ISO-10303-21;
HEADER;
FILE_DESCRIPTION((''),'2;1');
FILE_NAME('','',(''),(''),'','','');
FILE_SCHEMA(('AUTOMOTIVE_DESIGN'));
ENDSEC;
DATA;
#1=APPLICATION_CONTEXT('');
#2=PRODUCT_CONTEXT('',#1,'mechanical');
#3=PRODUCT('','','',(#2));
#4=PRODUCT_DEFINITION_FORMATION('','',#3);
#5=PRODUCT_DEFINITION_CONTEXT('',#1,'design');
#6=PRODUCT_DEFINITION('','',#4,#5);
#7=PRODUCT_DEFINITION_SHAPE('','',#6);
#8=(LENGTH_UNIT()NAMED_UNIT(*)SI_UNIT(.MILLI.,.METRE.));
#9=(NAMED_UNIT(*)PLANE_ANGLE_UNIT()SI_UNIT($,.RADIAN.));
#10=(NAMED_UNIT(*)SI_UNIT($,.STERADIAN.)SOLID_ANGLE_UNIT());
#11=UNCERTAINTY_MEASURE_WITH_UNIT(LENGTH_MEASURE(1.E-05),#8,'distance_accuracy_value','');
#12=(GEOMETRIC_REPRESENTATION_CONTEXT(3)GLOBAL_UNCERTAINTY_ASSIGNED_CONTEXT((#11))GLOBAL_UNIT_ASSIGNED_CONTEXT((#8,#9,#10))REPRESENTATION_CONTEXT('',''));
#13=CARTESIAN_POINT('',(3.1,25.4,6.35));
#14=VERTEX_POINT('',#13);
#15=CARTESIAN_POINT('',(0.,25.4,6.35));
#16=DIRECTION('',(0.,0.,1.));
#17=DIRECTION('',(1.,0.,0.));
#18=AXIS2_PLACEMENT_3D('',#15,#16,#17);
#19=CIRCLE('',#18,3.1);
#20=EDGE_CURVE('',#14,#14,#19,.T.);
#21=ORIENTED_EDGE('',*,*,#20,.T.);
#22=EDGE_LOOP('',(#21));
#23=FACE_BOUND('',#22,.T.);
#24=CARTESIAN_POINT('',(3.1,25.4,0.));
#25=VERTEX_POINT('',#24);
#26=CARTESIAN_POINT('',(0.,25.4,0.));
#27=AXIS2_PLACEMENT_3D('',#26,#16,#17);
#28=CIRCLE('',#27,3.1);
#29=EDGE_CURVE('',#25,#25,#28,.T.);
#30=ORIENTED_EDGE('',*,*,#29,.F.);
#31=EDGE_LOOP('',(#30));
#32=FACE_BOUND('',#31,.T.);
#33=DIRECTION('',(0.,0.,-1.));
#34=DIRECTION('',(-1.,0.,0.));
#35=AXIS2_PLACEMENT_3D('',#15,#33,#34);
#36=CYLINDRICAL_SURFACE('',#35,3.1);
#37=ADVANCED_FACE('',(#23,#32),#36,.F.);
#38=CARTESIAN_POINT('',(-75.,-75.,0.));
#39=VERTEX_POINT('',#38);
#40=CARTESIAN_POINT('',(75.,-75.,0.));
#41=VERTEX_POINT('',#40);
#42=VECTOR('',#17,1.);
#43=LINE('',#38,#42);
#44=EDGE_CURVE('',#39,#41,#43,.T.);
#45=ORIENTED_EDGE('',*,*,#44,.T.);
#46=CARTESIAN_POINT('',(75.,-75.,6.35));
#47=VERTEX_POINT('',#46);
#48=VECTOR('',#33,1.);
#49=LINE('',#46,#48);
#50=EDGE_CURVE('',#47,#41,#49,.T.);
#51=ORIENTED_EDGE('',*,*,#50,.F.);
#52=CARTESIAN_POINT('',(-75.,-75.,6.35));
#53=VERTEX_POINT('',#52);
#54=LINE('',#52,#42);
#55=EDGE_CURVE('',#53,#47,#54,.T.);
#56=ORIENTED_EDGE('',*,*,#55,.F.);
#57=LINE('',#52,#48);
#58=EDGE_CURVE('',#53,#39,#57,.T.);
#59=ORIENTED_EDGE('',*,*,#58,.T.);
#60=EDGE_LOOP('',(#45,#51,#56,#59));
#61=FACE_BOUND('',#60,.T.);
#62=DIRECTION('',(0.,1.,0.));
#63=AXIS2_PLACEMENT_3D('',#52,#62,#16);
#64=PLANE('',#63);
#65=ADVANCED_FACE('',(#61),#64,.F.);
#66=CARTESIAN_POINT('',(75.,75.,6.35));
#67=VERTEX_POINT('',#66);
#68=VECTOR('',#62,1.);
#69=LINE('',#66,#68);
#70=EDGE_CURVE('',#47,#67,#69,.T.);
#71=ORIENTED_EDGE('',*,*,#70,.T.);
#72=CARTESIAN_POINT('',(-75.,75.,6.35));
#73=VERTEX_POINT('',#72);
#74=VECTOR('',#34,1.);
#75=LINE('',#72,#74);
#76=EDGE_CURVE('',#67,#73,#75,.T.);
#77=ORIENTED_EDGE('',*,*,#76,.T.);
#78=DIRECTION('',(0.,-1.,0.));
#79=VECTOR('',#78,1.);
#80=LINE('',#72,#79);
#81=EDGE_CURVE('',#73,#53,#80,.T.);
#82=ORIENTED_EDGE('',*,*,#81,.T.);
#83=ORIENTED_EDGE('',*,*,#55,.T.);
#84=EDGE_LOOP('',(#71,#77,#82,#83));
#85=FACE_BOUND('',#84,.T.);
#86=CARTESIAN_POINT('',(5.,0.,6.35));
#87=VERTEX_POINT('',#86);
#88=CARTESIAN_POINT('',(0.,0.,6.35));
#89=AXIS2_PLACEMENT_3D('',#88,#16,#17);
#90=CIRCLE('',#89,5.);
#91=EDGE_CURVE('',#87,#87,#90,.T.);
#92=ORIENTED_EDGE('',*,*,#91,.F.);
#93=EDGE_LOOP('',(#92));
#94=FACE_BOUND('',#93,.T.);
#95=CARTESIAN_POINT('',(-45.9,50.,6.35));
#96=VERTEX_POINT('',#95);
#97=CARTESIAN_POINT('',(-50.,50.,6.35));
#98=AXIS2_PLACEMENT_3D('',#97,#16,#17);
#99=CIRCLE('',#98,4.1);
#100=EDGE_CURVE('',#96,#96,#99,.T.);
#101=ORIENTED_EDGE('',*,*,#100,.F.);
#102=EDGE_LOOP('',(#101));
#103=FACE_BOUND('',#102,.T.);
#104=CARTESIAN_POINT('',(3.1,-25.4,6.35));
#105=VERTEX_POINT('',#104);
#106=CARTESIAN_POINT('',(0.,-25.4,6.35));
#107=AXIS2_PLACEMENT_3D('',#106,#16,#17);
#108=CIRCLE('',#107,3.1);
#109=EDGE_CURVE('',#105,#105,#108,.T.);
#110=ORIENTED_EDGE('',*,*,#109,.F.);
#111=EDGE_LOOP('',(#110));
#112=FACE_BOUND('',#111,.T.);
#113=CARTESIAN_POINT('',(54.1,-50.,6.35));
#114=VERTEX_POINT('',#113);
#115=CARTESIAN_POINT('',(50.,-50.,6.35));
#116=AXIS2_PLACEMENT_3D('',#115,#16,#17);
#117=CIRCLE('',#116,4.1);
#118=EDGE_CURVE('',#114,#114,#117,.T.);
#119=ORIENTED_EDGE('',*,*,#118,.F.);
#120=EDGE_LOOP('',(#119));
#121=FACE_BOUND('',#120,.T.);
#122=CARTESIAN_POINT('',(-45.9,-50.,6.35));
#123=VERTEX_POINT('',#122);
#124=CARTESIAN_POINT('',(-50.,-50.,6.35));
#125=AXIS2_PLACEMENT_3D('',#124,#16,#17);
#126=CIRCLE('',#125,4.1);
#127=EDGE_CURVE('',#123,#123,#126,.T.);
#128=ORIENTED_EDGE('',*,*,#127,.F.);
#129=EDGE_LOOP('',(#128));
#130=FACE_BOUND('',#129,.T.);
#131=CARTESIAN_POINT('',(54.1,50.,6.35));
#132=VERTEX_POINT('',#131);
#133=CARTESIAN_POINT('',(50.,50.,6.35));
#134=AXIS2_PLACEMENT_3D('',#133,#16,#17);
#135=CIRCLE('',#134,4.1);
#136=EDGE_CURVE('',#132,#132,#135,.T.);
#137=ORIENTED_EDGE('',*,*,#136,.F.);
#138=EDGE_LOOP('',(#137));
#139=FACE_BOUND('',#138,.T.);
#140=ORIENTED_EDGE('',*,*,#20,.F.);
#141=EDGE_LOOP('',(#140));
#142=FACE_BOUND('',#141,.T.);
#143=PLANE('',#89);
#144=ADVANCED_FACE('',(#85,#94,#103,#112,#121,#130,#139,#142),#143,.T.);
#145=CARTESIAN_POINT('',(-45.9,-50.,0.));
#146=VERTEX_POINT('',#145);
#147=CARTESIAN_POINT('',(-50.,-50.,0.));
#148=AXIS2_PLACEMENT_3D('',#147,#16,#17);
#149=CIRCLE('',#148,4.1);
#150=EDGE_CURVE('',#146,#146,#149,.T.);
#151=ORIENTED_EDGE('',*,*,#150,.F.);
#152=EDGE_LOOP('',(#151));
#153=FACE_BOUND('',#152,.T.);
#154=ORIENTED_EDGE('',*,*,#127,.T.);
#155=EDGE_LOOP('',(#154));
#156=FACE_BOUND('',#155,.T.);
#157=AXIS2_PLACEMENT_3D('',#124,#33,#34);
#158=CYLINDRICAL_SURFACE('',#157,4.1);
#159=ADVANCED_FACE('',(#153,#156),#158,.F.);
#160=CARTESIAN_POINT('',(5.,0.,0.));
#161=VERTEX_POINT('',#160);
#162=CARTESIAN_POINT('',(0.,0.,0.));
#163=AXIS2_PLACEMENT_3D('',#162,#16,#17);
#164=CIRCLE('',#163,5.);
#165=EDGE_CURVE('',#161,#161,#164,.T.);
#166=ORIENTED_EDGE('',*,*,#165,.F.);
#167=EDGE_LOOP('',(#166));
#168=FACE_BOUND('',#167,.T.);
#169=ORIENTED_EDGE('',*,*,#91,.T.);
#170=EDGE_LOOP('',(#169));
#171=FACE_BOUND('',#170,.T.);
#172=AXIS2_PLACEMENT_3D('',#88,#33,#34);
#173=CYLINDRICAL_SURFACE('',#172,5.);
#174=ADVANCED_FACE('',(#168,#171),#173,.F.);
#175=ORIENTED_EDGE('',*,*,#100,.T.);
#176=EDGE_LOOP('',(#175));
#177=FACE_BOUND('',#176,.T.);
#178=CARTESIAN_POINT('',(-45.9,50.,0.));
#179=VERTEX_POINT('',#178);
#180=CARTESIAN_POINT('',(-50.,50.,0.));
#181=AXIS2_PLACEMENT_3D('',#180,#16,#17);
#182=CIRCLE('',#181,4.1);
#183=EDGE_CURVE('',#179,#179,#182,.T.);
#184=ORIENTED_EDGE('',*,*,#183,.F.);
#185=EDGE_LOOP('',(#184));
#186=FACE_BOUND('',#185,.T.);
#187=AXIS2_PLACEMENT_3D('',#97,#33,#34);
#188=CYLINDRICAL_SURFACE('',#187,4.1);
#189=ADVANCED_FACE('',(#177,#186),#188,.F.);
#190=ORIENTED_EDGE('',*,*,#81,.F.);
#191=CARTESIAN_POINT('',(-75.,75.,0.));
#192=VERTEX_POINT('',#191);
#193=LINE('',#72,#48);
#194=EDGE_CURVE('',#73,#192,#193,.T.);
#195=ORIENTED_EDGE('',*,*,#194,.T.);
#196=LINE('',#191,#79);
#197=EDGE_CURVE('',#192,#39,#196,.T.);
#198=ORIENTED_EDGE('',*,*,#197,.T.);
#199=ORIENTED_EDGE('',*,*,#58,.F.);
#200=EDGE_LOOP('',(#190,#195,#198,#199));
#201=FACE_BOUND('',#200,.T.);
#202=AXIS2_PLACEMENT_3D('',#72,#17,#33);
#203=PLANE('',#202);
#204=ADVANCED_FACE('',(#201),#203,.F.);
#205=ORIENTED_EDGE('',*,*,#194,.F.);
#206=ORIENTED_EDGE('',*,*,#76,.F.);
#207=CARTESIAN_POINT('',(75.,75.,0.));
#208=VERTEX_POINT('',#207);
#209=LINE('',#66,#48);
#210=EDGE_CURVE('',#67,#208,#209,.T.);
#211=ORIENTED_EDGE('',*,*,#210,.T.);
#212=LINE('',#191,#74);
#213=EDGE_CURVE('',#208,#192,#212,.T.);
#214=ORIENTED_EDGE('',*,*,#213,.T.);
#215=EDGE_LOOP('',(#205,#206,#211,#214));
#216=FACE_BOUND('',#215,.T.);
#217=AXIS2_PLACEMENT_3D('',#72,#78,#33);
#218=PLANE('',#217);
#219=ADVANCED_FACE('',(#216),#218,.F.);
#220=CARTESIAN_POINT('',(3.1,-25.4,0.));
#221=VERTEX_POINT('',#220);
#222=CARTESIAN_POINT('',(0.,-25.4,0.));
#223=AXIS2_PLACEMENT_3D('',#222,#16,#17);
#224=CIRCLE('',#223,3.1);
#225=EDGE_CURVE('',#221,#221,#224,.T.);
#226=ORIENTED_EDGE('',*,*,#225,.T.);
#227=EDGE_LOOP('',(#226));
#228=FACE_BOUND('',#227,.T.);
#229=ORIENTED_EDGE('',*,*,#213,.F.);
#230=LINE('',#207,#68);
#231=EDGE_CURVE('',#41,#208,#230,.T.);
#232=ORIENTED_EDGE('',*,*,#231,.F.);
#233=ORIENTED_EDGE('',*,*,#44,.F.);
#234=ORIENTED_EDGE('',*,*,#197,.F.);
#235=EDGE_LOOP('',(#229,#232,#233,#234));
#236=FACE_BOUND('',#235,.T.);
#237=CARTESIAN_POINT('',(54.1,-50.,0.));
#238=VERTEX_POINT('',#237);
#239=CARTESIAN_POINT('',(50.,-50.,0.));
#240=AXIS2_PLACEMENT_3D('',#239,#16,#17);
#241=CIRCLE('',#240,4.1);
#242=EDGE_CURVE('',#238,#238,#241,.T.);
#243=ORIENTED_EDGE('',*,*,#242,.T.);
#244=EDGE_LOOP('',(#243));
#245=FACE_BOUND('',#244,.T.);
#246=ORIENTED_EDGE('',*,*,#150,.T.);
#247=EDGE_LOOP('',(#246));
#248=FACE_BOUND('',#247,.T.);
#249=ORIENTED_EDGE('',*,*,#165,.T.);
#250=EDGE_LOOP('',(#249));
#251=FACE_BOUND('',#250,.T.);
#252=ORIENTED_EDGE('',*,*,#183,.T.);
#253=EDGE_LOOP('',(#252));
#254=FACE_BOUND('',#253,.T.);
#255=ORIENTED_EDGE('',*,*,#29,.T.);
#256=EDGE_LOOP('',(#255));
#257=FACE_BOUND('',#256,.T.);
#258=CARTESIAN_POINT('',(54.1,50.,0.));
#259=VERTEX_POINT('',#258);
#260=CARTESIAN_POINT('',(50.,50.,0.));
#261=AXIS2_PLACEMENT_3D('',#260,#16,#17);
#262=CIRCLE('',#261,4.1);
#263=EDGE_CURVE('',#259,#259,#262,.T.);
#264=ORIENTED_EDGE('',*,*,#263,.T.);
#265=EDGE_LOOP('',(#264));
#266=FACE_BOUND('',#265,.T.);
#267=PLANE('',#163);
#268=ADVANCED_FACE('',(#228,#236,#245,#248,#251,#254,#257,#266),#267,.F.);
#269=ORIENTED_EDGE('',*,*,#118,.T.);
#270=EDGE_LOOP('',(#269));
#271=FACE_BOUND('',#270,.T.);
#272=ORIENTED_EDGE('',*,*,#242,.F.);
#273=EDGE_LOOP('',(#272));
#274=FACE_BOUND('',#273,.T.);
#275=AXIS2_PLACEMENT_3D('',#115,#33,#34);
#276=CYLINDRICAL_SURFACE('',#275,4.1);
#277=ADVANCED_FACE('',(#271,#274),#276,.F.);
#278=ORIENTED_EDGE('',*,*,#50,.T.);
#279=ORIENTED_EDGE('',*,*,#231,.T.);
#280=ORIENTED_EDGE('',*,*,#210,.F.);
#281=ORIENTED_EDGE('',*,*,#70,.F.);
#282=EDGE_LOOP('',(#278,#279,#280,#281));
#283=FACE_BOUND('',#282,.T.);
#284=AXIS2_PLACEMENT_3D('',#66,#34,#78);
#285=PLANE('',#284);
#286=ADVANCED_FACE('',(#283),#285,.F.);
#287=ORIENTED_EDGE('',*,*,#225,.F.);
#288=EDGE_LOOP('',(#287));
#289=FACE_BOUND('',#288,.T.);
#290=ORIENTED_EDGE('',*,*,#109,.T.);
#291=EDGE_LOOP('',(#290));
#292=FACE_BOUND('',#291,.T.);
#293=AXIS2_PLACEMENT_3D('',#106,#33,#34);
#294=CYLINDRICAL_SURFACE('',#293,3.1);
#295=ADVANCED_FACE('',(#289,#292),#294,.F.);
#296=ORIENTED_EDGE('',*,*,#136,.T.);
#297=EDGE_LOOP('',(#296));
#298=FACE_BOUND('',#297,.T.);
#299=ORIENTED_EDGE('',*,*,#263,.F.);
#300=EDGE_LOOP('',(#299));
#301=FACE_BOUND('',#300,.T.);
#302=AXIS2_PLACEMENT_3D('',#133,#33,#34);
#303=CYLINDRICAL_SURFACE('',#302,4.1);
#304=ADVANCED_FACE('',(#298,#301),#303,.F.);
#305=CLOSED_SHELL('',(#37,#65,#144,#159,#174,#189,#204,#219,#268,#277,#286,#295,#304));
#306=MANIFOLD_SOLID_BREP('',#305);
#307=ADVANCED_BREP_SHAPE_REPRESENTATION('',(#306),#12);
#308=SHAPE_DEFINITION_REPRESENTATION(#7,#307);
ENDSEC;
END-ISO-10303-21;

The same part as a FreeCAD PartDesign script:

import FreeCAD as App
import Part
import Sketcher

V = App.Vector
Q = App.Units.Quantity


def add_polygon(sketch, points):
    """Adds a closed chain of lines whose ends are joined by coincident constraints."""
    first, n = sketch.GeometryCount, len(points)
    for a, b in zip(points, points[1:] + points[:1]):
        sketch.addGeometry(Part.LineSegment(App.Vector(*a, 0), App.Vector(*b, 0)), False)
    for i in range(n):
        sketch.addConstraint(Sketcher.Constraint("Coincident", first + i, 2, first + (i + 1) % n, 1))

doc = App.newDocument("Part")
body = doc.addObject("PartDesign::Body", "Body")

sketch1 = body.newObject("Sketcher::SketchObject", "Sketch")
sketch1.AttachmentSupport = (doc.getObject("XY_Plane"), [""])
sketch1.MapMode = "FlatFace"
add_polygon(sketch1, [(-75, 75), (-75, -75), (75, -75), (75, 75)])
sketch1.addGeometry(Part.Circle(V(-50, -50, 0), V(0, 0, 1), 4.1), False)
sketch1.addGeometry(Part.Circle(V(0, -25.4, 0), V(0, 0, 1), 3.1), False)
sketch1.addGeometry(Part.Circle(V(0, 0, 0), V(0, 0, 1), 5), False)
sketch1.addGeometry(Part.Circle(V(50, -50, 0), V(0, 0, 1), 4.1), False)
sketch1.addGeometry(Part.Circle(V(0, 25.4, 0), V(0, 0, 1), 3.1), False)
sketch1.addGeometry(Part.Circle(V(-50, 50, 0), V(0, 0, 1), 4.1), False)
sketch1.addGeometry(Part.Circle(V(50, 50, 0), V(0, 0, 1), 4.1), False)
sketch1.addConstraint(Sketcher.Constraint("Vertical", 0))
sketch1.addConstraint(Sketcher.Constraint("Horizontal", 1))
sketch1.addConstraint(Sketcher.Constraint("Vertical", 2))
sketch1.addConstraint(Sketcher.Constraint("Horizontal", 3))
sketch1.addConstraint(Sketcher.Constraint("Coincident", 6, 3, -1, 1))
sketch1.addConstraint(Sketcher.Constraint("Equal", 4, 7))
sketch1.addConstraint(Sketcher.Constraint("Equal", 5, 8))
sketch1.addConstraint(Sketcher.Constraint("Equal", 7, 9))
sketch1.addConstraint(Sketcher.Constraint("Equal", 9, 10))
sketch1.addConstraint(Sketcher.Constraint("Symmetric", 5, 3, 8, 3, -1, 1))
sketch1.addConstraint(Sketcher.Constraint("Symmetric", 7, 3, 9, 3, -1, 1))
sketch1.addConstraint(Sketcher.Constraint("Symmetric", 4, 3, 10, 3, -1, 1))
sketch1.addConstraint(Sketcher.Constraint("Symmetric", 0, 2, 2, 2, -1, 1))
sketch1.addConstraint(Sketcher.Constraint("Symmetric", 4, 3, 7, 3, -2))
sketch1.addConstraint(Sketcher.Constraint("PointOnObject", 5, 3, -2))
sketch1.addConstraint(Sketcher.Constraint("Equal", 3, 0))
sketch1.addConstraint(Sketcher.Constraint("Diameter", 6, Q("10 mm")))
sketch1.addConstraint(Sketcher.Constraint("Diameter", 4, Q("8.2 mm")))
sketch1.addConstraint(Sketcher.Constraint("Diameter", 5, Q("6.2 mm")))
sketch1.addConstraint(Sketcher.Constraint("DistanceX", 1, 1, 1, 2, Q("150 mm")))
sketch1.addConstraint(Sketcher.Constraint("DistanceX", 4, 3, -1, 1, Q("50 mm")))
sketch1.addConstraint(Sketcher.Constraint("DistanceY", 4, 3, -1, 1, Q("50 mm")))
sketch1.addConstraint(Sketcher.Constraint("DistanceY", 5, 3, -1, 1, Q("25.4 mm")))
pad1 = body.newObject("PartDesign::Pad", "Pad")
pad1.Profile = sketch1
pad1.Length = 6.35

doc.recompute()
